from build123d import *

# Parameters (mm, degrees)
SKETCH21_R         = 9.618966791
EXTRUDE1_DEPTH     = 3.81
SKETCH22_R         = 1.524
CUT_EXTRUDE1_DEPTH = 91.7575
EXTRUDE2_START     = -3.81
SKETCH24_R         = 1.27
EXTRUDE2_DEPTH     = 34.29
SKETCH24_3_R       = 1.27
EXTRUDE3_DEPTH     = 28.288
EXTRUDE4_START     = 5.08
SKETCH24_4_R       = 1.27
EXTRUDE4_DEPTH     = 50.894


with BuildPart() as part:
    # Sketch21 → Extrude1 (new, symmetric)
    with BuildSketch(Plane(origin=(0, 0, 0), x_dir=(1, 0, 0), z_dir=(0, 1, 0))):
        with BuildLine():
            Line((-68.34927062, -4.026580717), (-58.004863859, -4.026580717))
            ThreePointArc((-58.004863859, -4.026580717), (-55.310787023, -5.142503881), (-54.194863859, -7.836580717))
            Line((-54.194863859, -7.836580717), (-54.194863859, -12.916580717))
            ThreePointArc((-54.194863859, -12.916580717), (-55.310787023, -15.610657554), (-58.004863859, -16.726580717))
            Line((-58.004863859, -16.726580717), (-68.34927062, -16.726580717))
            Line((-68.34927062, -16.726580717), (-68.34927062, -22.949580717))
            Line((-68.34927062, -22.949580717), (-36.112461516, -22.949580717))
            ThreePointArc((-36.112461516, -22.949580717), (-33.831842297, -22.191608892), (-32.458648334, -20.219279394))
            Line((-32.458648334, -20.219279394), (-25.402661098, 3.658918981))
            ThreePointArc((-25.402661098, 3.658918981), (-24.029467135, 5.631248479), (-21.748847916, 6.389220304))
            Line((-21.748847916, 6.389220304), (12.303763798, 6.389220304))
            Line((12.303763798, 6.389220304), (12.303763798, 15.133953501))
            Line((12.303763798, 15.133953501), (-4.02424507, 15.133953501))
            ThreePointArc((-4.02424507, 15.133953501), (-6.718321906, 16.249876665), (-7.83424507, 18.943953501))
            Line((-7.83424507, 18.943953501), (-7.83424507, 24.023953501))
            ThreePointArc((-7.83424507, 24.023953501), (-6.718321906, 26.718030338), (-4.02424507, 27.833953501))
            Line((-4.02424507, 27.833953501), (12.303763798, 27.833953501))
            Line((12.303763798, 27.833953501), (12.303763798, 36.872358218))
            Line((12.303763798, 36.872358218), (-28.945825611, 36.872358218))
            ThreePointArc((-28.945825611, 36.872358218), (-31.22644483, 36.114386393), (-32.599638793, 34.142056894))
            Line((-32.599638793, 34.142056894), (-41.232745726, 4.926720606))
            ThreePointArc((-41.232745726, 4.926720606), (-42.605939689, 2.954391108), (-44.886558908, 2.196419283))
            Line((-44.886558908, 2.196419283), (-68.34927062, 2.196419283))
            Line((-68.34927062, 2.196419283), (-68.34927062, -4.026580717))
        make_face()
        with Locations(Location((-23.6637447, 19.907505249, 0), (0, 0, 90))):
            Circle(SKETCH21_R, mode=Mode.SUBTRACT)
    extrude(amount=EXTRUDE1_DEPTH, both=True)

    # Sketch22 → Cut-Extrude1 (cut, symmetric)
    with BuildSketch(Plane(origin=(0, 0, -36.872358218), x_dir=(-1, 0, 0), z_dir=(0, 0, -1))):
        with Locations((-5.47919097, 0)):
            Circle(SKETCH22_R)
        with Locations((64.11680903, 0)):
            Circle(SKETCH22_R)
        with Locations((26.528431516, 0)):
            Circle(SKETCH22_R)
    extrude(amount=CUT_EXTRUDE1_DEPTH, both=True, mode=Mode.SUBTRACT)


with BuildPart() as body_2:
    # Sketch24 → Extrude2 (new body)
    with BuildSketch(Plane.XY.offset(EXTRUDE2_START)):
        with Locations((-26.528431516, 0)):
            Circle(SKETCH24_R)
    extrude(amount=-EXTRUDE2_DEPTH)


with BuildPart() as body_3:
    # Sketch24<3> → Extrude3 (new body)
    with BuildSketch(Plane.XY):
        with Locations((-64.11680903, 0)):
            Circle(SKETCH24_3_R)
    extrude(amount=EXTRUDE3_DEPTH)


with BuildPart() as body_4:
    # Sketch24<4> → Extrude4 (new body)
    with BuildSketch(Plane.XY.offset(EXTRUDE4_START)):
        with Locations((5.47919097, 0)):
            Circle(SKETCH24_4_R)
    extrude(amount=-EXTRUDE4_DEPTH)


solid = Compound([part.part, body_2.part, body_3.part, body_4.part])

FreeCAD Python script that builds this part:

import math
import FreeCAD as App
import Part
import Sketcher
from FreeCAD import Vector
Q = App.Units.Quantity

doc = App.newDocument("Part")
body = doc.addObject("PartDesign::Body", "Body")

# Sketch on XZ plane
sketch1 = body.newObject("Sketcher::SketchObject", "Sketch")
sketch1.AttachmentSupport = (doc.getObject("XZ_Plane"), [""])
sketch1.MapMode = "FlatFace"
sketch1.addGeometry([
    Part.LineSegment(Vector(-68.349271, 4.026581, 0), Vector(-58.004864, 4.026581, 0)),  # 0
    Part.ArcOfCircle(Part.Circle(Vector(-58.004864, 7.836581, 0), Vector(0, 0, 1), 3.81), math.radians(-90), math.radians(0)),  # 1
    Part.LineSegment(Vector(-54.194864, 7.836581, 0), Vector(-54.194864, 12.916581, 0)),  # 2
    Part.ArcOfCircle(Part.Circle(Vector(-58.004864, 12.916581, 0), Vector(0, 0, 1), 3.81), math.radians(0), math.radians(90)),  # 3
    Part.LineSegment(Vector(-58.004864, 16.726581, 0), Vector(-68.349271, 16.726581, 0)),  # 4
    Part.LineSegment(Vector(-68.349271, 16.726581, 0), Vector(-68.349271, 22.949581, 0)),  # 5
    Part.LineSegment(Vector(-68.349271, 22.949581, 0), Vector(-36.112462, 22.949581, 0)),  # 6
    Part.ArcOfCircle(Part.Circle(Vector(-36.112462, 19.139581, 0), Vector(0, 0, 1), 3.81), math.radians(16.462365), math.radians(90)),  # 7
    Part.LineSegment(Vector(-32.458648, 20.219279, 0), Vector(-25.402661, -3.658919, 0)),  # 8
    Part.ArcOfCircle(Part.Circle(Vector(-21.748848, -2.57922, 0), Vector(0, 0, 1), 3.81), math.radians(-163.537635), math.radians(-90)),  # 9
    Part.LineSegment(Vector(-21.748848, -6.38922, 0), Vector(12.303764, -6.38922, 0)),  # 10
    Part.LineSegment(Vector(12.303764, -6.38922, 0), Vector(12.303764, -15.133954, 0)),  # 11
    Part.LineSegment(Vector(12.303764, -15.133954, 0), Vector(-4.024245, -15.133954, 0)),  # 12
    Part.ArcOfCircle(Part.Circle(Vector(-4.024245, -18.943954, 0), Vector(0, 0, 1), 3.81), math.radians(90), math.radians(180)),  # 13
    Part.LineSegment(Vector(-7.834245, -18.943954, 0), Vector(-7.834245, -24.023954, 0)),  # 14
    Part.ArcOfCircle(Part.Circle(Vector(-4.024245, -24.023954, 0), Vector(0, 0, 1), 3.81), math.radians(180), math.radians(270)),  # 15
    Part.LineSegment(Vector(-4.024245, -27.833954, 0), Vector(12.303764, -27.833954, 0)),  # 16
    Part.LineSegment(Vector(12.303764, -27.833954, 0), Vector(12.303764, -36.872358, 0)),  # 17
    Part.LineSegment(Vector(12.303764, -36.872358, 0), Vector(-28.945826, -36.872358, 0)),  # 18
    Part.ArcOfCircle(Part.Circle(Vector(-28.945826, -33.062358, 0), Vector(0, 0, 1), 3.81), math.radians(-163.537635), math.radians(-90)),  # 19
    Part.LineSegment(Vector(-32.599639, -34.142057, 0), Vector(-41.232746, -4.926721, 0)),  # 20
    Part.ArcOfCircle(Part.Circle(Vector(-44.886559, -6.006419, 0), Vector(0, 0, 1), 3.81), math.radians(16.462365), math.radians(90)),  # 21
    Part.LineSegment(Vector(-44.886559, -2.196419, 0), Vector(-68.349271, -2.196419, 0)),  # 22
    Part.LineSegment(Vector(-68.349271, -2.196419, 0), Vector(-68.349271, 4.026581, 0)),  # 23
    Part.Circle(Vector(-23.663745, -19.907505, 0), Vector(0, 0, 1), 9.618967),  # 24
], False)
sketch1.addConstraint([
    Sketcher.Constraint("Tangent", 0, 2, 1, 1),
    Sketcher.Constraint("Tangent", 1, 2, 2, 1),
    Sketcher.Constraint("Tangent", 2, 2, 3, 1),
    Sketcher.Constraint("Tangent", 3, 2, 4, 1),
    Sketcher.Constraint("Coincident", 4, 2, 5, 1),
    Sketcher.Constraint("Coincident", 5, 2, 6, 1),
    Sketcher.Constraint("Tangent", 6, 2, 7, 2),
    Sketcher.Constraint("Tangent", 7, 1, 8, 1),
    Sketcher.Constraint("Tangent", 8, 2, 9, 1),
    Sketcher.Constraint("Tangent", 9, 2, 10, 1),
    Sketcher.Constraint("Coincident", 10, 2, 11, 1),
    Sketcher.Constraint("Coincident", 11, 2, 12, 1),
    Sketcher.Constraint("Tangent", 12, 2, 13, 1),
    Sketcher.Constraint("Tangent", 13, 2, 14, 1),
    Sketcher.Constraint("Tangent", 14, 2, 15, 1),
    Sketcher.Constraint("Tangent", 15, 2, 16, 1),
    Sketcher.Constraint("Coincident", 16, 2, 17, 1),
    Sketcher.Constraint("Coincident", 17, 2, 18, 1),
    Sketcher.Constraint("Tangent", 18, 2, 19, 2),
    Sketcher.Constraint("Tangent", 19, 1, 20, 1),
    Sketcher.Constraint("Tangent", 20, 2, 21, 1),
    Sketcher.Constraint("Tangent", 21, 2, 22, 1),
    Sketcher.Constraint("Coincident", 22, 2, 23, 1),
    Sketcher.Constraint("Coincident", 23, 2, 0, 1),
    Sketcher.Constraint("Horizontal", 0),
    Sketcher.Constraint("Vertical", 2),
    Sketcher.Constraint("Horizontal", 4),
    Sketcher.Constraint("Vertical", 5),
    Sketcher.Constraint("Horizontal", 6),
    Sketcher.Constraint("Horizontal", 10),
    Sketcher.Constraint("Vertical", 11),
    Sketcher.Constraint("Horizontal", 12),
    Sketcher.Constraint("Vertical", 14),
    Sketcher.Constraint("Horizontal", 16),
    Sketcher.Constraint("Vertical", 17),
    Sketcher.Constraint("Horizontal", 18),
    Sketcher.Constraint("Horizontal", 22),
    Sketcher.Constraint("Vertical", 23),
    Sketcher.Constraint("Equal", 1, 3),
    Sketcher.Constraint("Equal", 3, 7),
    Sketcher.Constraint("Equal", 7, 9),
    Sketcher.Constraint("Equal", 9, 13),
    Sketcher.Constraint("Equal", 13, 15),
    Sketcher.Constraint("Equal", 15, 19),
    Sketcher.Constraint("Equal", 19, 21),
    Sketcher.Constraint("Parallel", 8, 20),
    Sketcher.Constraint("Vertical", 11, 2, 16, 2),
    Sketcher.Constraint("Vertical", 5, 2, 22, 2),
    Sketcher.Constraint("Equal", 2, 14),
    Sketcher.Constraint("Equal", 5, 23),
    Sketcher.Constraint("Radius", 1, Q("0.15 in")),
    Sketcher.Constraint("DistanceY", 2, 1, 2, 2, Q("0.2 in")),
    Sketcher.Constraint("DistanceY", 5, 1, 5, 2, Q("0.245 in")),
    Sketcher.Constraint("Diameter", 24, 19.237934),
    Sketcher.Constraint("DistanceX", -1, 1, 10, 2, Q("0.4844001 in")),
    Sketcher.Constraint("Distance", 8, 24.898902),
    Sketcher.Constraint("DistanceX", 6, 1, 6, 2, 32.236809),
    Sketcher.Constraint("DistanceX", 10, 1, 10, 2, 34.052612),
    Sketcher.Constraint("DistanceX", 12, 2, 12, 1, 16.328009),
    Sketcher.Constraint("DistanceX", 18, 2, 18, 1, 41.249589),
    Sketcher.Constraint("DistanceX", 22, 2, 22, 1, 23.462712),
    Sketcher.Constraint("DistanceY", 9, 3, 7, 3, 21.718801),
    Sketcher.Constraint("DistanceX", 24, 3, 13, 3, 19.6395),
    Sketcher.Constraint("DistanceX", 0, 1, 0, 2, 10.344407),
    Sketcher.Constraint("DistanceY", 11, 2, 11, 1, 8.744733),
    Sketcher.Constraint("DistanceY", -1, 1, 1, 3, 7.836581),
    Sketcher.Constraint("DistanceY", 24, 3, 13, 3, 0.963552),
])
pad1 = body.newObject("PartDesign::Pad", "Pad")
pad1.Profile = sketch1
pad1.Length = Q("0.3 in")
pad1.Midplane = True

# Sketch on XY plane
sketch2 = body.newObject("Sketcher::SketchObject", "Sketch001")
sketch2.AttachmentSupport = (doc.getObject("XY_Plane"), [""])
sketch2.MapMode = "FlatFace"
sketch2.AttachmentOffset = App.Placement(Vector(0, 0, -36.872358), App.Rotation())
sketch2.addGeometry([
    Part.Circle(Vector(5.479191, 0, 0), Vector(0, 0, 1), 1.524),
    Part.Circle(Vector(-64.116809, 0, 0), Vector(0, 0, 1), 1.524),
    Part.Circle(Vector(-26.528432, 0, 0), Vector(0, 0, 1), 1.524),
], False)
sketch2.addConstraint([
    Sketcher.Constraint("Equal", 0, 1),
    Sketcher.Constraint("Equal", 1, 2),
    Sketcher.Constraint("PointOnObject", 0, 3, -1),
    Sketcher.Constraint("PointOnObject", 1, 3, -1),
    Sketcher.Constraint("PointOnObject", 2, 3, -1),
    Sketcher.Constraint("Diameter", 0, Q("0.12 in")),
    Sketcher.Constraint("DistanceX", 1, 3, 0, 3, Q("2.74 in")),
    Sketcher.Constraint("DistanceX", -1, 1, 0, 3, 5.479191),
    Sketcher.Constraint("DistanceX", 2, 3, -1, 1, 26.528432),
])
pocket1 = body.newObject("PartDesign::Pocket", "Pocket")
pocket1.Profile = sketch2
pocket1.Length = Q("7.225 in")
pocket1.Midplane = True
body2 = doc.addObject("PartDesign::Body", "Body001")

# Sketch on XY plane
sketch3 = body2.newObject("Sketcher::SketchObject", "Sketch002")
sketch3.AttachmentSupport = (doc.getObject("XY_Plane001"), [""])
sketch3.MapMode = "FlatFace"
sketch3.AttachmentOffset = App.Placement(Vector(0, 0, -0.15 * 25.4), App.Rotation())
sketch3.addGeometry(Part.Circle(Vector(-26.528432, 0, 0), Vector(0, 0, 1), 1.27), False)
sketch3.addConstraint([
    Sketcher.Constraint("PointOnObject", 0, 3, -1),
    Sketcher.Constraint("Diameter", 0, Q("0.1 in")),
    Sketcher.Constraint("DistanceX", 0, 3, -1, 1, 26.528432),
])
pad2 = body2.newObject("PartDesign::Pad", "Pad001")
pad2.Profile = sketch3
pad2.Length = Q("1.35 in")
pad2.Reversed = True
body3 = doc.addObject("PartDesign::Body", "Body002")

# Sketch on XY plane
sketch4 = body3.newObject("Sketcher::SketchObject", "Sketch003")
sketch4.AttachmentSupport = (doc.getObject("XY_Plane002"), [""])
sketch4.MapMode = "FlatFace"
sketch4.addGeometry(Part.Circle(Vector(-64.116809, 0, 0), Vector(0, 0, 1), 1.27), False)
sketch4.addConstraint([
    Sketcher.Constraint("PointOnObject", 0, 3, -1),
    Sketcher.Constraint("Diameter", 0, Q("0.1 in")),
    Sketcher.Constraint("DistanceX", 0, 3, -1, 1, 64.116809),
])
pad3 = body3.newObject("PartDesign::Pad", "Pad002")
pad3.Profile = sketch4
pad3.Length = 28.288
body4 = doc.addObject("PartDesign::Body", "Body003")

# Sketch on XY plane
sketch5 = body4.newObject("Sketcher::SketchObject", "Sketch004")
sketch5.AttachmentSupport = (doc.getObject("XY_Plane003"), [""])
sketch5.MapMode = "FlatFace"
sketch5.AttachmentOffset = App.Placement(Vector(0, 0, 0.2 * 25.4), App.Rotation())
sketch5.addGeometry(Part.Circle(Vector(5.479191, 0, 0), Vector(0, 0, 1), 1.27), False)
sketch5.addConstraint([
    Sketcher.Constraint("PointOnObject", 0, 3, -1),
    Sketcher.Constraint("Diameter", 0, Q("0.1 in")),
    Sketcher.Constraint("DistanceX", -1, 1, 0, 3, 5.479191),
])
pad4 = body4.newObject("PartDesign::Pad", "Pad003")
pad4.Profile = sketch5
pad4.Length = 50.894
pad4.Reversed = True

doc.recompute()
